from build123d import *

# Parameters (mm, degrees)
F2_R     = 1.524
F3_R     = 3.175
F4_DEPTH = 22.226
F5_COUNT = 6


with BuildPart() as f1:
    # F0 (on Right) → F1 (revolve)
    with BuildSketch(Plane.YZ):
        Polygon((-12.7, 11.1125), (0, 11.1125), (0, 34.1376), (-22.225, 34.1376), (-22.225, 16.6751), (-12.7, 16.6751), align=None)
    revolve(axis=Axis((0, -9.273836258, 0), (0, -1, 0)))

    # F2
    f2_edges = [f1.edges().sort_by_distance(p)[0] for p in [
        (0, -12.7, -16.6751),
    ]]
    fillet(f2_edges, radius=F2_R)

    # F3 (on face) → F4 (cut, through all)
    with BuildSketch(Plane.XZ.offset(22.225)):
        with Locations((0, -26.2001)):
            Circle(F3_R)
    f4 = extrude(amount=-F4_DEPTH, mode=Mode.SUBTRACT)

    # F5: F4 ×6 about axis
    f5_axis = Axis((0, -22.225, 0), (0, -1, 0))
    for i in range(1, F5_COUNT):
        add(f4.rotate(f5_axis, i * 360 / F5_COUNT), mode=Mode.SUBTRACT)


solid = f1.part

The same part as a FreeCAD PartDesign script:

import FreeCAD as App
import Part
import Sketcher

V = App.Vector
Q = App.Units.Quantity


def edges_at(feature, points):
    """Names of the edges that pass closest to the given points."""
    edges = feature.Shape.Edges
    near = lambda p: min(range(len(edges)), key=lambda i: edges[i].distToShape(Part.Vertex(*p))[0])
    return sorted({f"Edge{near(p) + 1}" for p in points})

doc = App.newDocument("Part")
body = doc.addObject("PartDesign::Body", "Body")

# Sketch on YZ plane
sketch1 = doc.addObject("Sketcher::SketchObject", "Sketch")
body.addObject(sketch1)
sketch1.AttachmentSupport = (doc.YZ_Plane, [""])
sketch1.MapMode = "FlatFace"
sketch1.addGeometry(Part.LineSegment(V(-13, 11, 0), V(0, 11, 0)), False)
sketch1.addGeometry(Part.LineSegment(V(0, 11, 0), V(0, 34, 0)), False)
sketch1.addGeometry(Part.LineSegment(V(0, 34, 0), V(-22, 34, 0)), False)
sketch1.addGeometry(Part.LineSegment(V(-22, 34, 0), V(-22, 17, 0)), False)
sketch1.addGeometry(Part.LineSegment(V(-22, 17, 0), V(-13, 17, 0)), False)
sketch1.addGeometry(Part.LineSegment(V(-13, 17, 0), V(-13, 11, 0)), False)
sketch1.addConstraint(Sketcher.Constraint("Coincident", 0, 2, 1, 1))
sketch1.addConstraint(Sketcher.Constraint("Coincident", 1, 2, 2, 1))
sketch1.addConstraint(Sketcher.Constraint("Coincident", 2, 2, 3, 1))
sketch1.addConstraint(Sketcher.Constraint("Coincident", 3, 2, 4, 1))
sketch1.addConstraint(Sketcher.Constraint("Coincident", 4, 2, 5, 1))
sketch1.addConstraint(Sketcher.Constraint("Coincident", 5, 2, 0, 1))
sketch1.addConstraint(Sketcher.Constraint("Horizontal", 0))
sketch1.addConstraint(Sketcher.Constraint("Vertical", 1))
sketch1.addConstraint(Sketcher.Constraint("Horizontal", 2))
sketch1.addConstraint(Sketcher.Constraint("Vertical", 3))
sketch1.addConstraint(Sketcher.Constraint("Horizontal", 4))
sketch1.addConstraint(Sketcher.Constraint("Vertical", 5))
sketch1.addConstraint(Sketcher.Constraint("PointOnObject", 0, 2, -2))
sketch1.addConstraint(Sketcher.Constraint("DistanceX", 0, 1, 0, 2, Q("0.5 in")))
sketch1.addConstraint(Sketcher.Constraint("DistanceX", 2, 2, 2, 1, Q("0.875 in")))
sketch1.addConstraint(Sketcher.Constraint("DistanceY", 3, 2, 3, 1, Q("0.6875 in")))
sketch1.addConstraint(Sketcher.Constraint("DistanceY", 5, 2, 5, 1, Q("0.219 in")))
sketch1.addConstraint(Sketcher.Constraint("DistanceY", -1, 1, 0, 2, Q("0.4375 in")))
revolution = doc.addObject("PartDesign::Revolution", "Revolution")
body.addObject(revolution)
revolution.Profile = sketch1
revolution.ReferenceAxis = (sketch1, ["H_Axis"])
revolution.Angle = 360
doc.recompute()

fillet = doc.addObject("PartDesign::Fillet", "Fillet")
body.addObject(fillet)
fillet.Base = (revolution, edges_at(revolution, [(0, -12.7, -16.675)]))
fillet.Radius = Q("0.06 in")

# Sketch on XZ plane
sketch2 = doc.addObject("Sketcher::SketchObject", "Sketch001")
body.addObject(sketch2)
sketch2.AttachmentSupport = (doc.XZ_Plane, [""])
sketch2.MapMode = "FlatFace"
sketch2.AttachmentOffset = App.Placement(V(0, 0, 0.875 * 25.4), App.Rotation())
sketch2.addGeometry(Part.Circle(V(0, -26.2, 0), V(0, 0, 1), 3.2), False)
sketch2.addConstraint(Sketcher.Constraint("PointOnObject", 0, 3, -2))
sketch2.addConstraint(Sketcher.Constraint("Diameter", 0, Q("0.25 in")))
sketch2.addConstraint(Sketcher.Constraint("DistanceY", 0, 3, -1, 1, Q("1.0315 in")))
pocket1 = doc.addObject("PartDesign::Pocket", "Pocket")
body.addObject(pocket1)
pocket1.Profile = sketch2
pocket1.Type = "ThroughAll"
doc.recompute()

polarpattern = doc.addObject("PartDesign::PolarPattern", "PolarPattern")
body.addObject(polarpattern)
polarpattern.Originals = [pocket1]
polarpattern.Axis = (doc.Y_Axis, [""])
polarpattern.Angle = 360
polarpattern.Occurrences = 6
body.Tip = polarpattern

doc.recompute()
